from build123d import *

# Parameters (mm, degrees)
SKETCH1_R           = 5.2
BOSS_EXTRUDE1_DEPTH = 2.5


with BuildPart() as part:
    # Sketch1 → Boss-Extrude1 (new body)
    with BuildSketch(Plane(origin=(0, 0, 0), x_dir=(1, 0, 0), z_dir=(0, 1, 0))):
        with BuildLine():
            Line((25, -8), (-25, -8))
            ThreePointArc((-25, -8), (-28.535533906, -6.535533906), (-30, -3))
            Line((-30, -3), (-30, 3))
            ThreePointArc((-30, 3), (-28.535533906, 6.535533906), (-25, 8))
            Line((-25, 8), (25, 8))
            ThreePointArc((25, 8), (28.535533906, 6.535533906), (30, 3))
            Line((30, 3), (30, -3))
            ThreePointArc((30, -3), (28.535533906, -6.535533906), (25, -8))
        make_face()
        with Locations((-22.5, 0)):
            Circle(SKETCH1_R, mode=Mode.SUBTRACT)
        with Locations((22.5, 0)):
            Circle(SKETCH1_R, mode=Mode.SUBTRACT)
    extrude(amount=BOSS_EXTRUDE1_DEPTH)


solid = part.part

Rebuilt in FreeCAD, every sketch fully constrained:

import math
import FreeCAD as App
import Part
import Sketcher
Q = App.Units.Quantity

doc = App.newDocument("Part")
body = doc.addObject("PartDesign::Body", "Body")

# Sketch on XZ plane
sketch1 = body.newObject("Sketcher::SketchObject", "Sketch")
sketch1.AttachmentSupport = (doc.getObject("XZ_Plane"), [""])
sketch1.MapMode = "FlatFace"
sketch1.addGeometry([
    Part.LineSegment(App.Vector(-25, 8, 0), App.Vector(25, 8, 0)),  # 0
    Part.ArcOfCircle(Part.Circle(App.Vector(25, 3, 0), App.Vector(0, 0, 1), 5), math.radians(0), math.radians(90)),  # 1
    Part.LineSegment(App.Vector(30, 3, 0), App.Vector(30, -3, 0)),  # 2
    Part.ArcOfCircle(Part.Circle(App.Vector(25, -3, 0), App.Vector(0, 0, 1), 5), math.radians(-90), math.radians(0)),  # 3
    Part.LineSegment(App.Vector(25, -8, 0), App.Vector(-25, -8, 0)),  # 4
    Part.ArcOfCircle(Part.Circle(App.Vector(-25, -3, 0), App.Vector(0, 0, 1), 5), math.radians(180), math.radians(270)),  # 5
    Part.LineSegment(App.Vector(-30, -3, 0), App.Vector(-30, 3, 0)),  # 6
    Part.ArcOfCircle(Part.Circle(App.Vector(-25, 3, 0), App.Vector(0, 0, 1), 5), math.radians(90), math.radians(180)),  # 7
    Part.Circle(App.Vector(22.5, 0, 0), App.Vector(0, 0, 1), 5.2),  # 8
    Part.Circle(App.Vector(-22.5, 0, 0), App.Vector(0, 0, 1), 5.2),  # 9
], False)
sketch1.addConstraint([
    Sketcher.Constraint("Tangent", 0, 2, 1, 2),
    Sketcher.Constraint("Tangent", 1, 1, 2, 1),
    Sketcher.Constraint("Tangent", 2, 2, 3, 2),
    Sketcher.Constraint("Tangent", 3, 1, 4, 1),
    Sketcher.Constraint("Tangent", 4, 2, 5, 2),
    Sketcher.Constraint("Tangent", 5, 1, 6, 1),
    Sketcher.Constraint("Tangent", 6, 2, 7, 2),
    Sketcher.Constraint("Tangent", 7, 1, 0, 1),
    Sketcher.Constraint("Horizontal", 0),
    Sketcher.Constraint("Vertical", 2),
    Sketcher.Constraint("Horizontal", 4),
    Sketcher.Constraint("Vertical", 6),
    Sketcher.Constraint("Equal", 1, 3),
    Sketcher.Constraint("Equal", 3, 5),
    Sketcher.Constraint("Equal", 5, 7),
    Sketcher.Constraint("Equal", 8, 9),
    Sketcher.Constraint("Symmetric", 1, 3, 5, 3, -1, 1),
    Sketcher.Constraint("Symmetric", 8, 3, 9, 3, -1, 1),
    Sketcher.Constraint("PointOnObject", 8, 3, -1),
    Sketcher.Constraint("Radius", 1, Q("5 mm")),
    Sketcher.Constraint("Diameter", 8, Q("10.4 mm")),
    Sketcher.Constraint("DistanceX", 0, 1, 0, 2, Q("50 mm")),
    Sketcher.Constraint("DistanceY", 2, 2, 2, 1, Q("6 mm")),
    Sketcher.Constraint("DistanceX", 9, 3, 8, 3, Q("45 mm")),
])
pad1 = body.newObject("PartDesign::Pad", "Pad")
pad1.Profile = sketch1
pad1.Length = 2.5
pad1.Reversed = True

doc.recompute()
